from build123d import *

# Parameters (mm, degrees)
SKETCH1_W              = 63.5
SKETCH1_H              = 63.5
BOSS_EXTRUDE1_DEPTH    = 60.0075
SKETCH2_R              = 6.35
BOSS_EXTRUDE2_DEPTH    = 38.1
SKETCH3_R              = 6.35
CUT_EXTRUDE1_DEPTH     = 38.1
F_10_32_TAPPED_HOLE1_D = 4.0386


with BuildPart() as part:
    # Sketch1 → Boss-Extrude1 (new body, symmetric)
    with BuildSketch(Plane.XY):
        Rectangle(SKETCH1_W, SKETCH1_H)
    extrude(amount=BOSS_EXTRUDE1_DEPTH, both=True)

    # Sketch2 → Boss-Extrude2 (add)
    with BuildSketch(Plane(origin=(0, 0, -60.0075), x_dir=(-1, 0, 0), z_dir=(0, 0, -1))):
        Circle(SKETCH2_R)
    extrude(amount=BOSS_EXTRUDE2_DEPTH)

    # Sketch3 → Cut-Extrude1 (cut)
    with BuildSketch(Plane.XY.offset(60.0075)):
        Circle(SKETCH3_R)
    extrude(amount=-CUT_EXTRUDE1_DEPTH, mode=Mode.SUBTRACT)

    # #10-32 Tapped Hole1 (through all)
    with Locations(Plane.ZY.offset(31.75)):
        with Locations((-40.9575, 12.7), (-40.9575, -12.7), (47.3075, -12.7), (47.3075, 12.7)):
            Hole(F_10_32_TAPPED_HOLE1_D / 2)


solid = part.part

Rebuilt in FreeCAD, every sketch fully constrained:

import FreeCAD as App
import Part
import Sketcher
Q = App.Units.Quantity


def add_polygon(sketch, points):
    """Adds a closed chain of lines whose ends are joined by coincident constraints."""
    first, n = sketch.GeometryCount, len(points)
    for a, b in zip(points, points[1:] + points[:1]):
        sketch.addGeometry(Part.LineSegment(App.Vector(*a, 0), App.Vector(*b, 0)), False)
    for i in range(n):
        sketch.addConstraint(Sketcher.Constraint("Coincident", first + i, 2, first + (i + 1) % n, 1))

doc = App.newDocument("Part")
body = doc.addObject("PartDesign::Body", "Body")

sketch1 = body.newObject("Sketcher::SketchObject", "Sketch")
sketch1.AttachmentSupport = (doc.getObject("XY_Plane"), [""])
sketch1.MapMode = "FlatFace"
add_polygon(sketch1, [(-31.75, 31.75), (-31.75, -31.75), (31.75, -31.75), (31.75, 31.75)])
sketch1.addConstraint(Sketcher.Constraint("Vertical", 0))
sketch1.addConstraint(Sketcher.Constraint("Horizontal", 1))
sketch1.addConstraint(Sketcher.Constraint("Vertical", 2))
sketch1.addConstraint(Sketcher.Constraint("Horizontal", 3))
sketch1.addConstraint(Sketcher.Constraint("Symmetric", 0, 2, 2, 2, -1, 1))
sketch1.addConstraint(Sketcher.Constraint("Equal", 3, 0))
sketch1.addConstraint(Sketcher.Constraint("DistanceX", 1, 1, 1, 2, Q("2.5 in")))
pad1 = body.newObject("PartDesign::Pad", "Pad")
pad1.Profile = sketch1
pad1.Length = Q("4.725 in")
pad1.Midplane = True

sketch2 = body.newObject("Sketcher::SketchObject", "Sketch001")
sketch2.AttachmentSupport = (doc.getObject("XY_Plane"), [""])
sketch2.MapMode = "FlatFace"
sketch2.AttachmentOffset = App.Placement(App.Vector(0, 0, -2.3625 * 25.4), App.Rotation())
sketch2.addGeometry(Part.Circle(App.Vector(0, 0, 0), App.Vector(0, 0, 1), 6.35), False)
sketch2.addConstraint(Sketcher.Constraint("Coincident", 0, 3, -1, 1))
sketch2.addConstraint(Sketcher.Constraint("Diameter", 0, Q("0.5 in")))
pad2 = body.newObject("PartDesign::Pad", "Pad001")
pad2.Profile = sketch2
pad2.Length = Q("1.5 in")
pad2.Reversed = True

sketch3 = body.newObject("Sketcher::SketchObject", "Sketch002")
sketch3.AttachmentSupport = (doc.getObject("XY_Plane"), [""])
sketch3.MapMode = "FlatFace"
sketch3.AttachmentOffset = App.Placement(App.Vector(0, 0, 2.3625 * 25.4), App.Rotation())
sketch3.addGeometry(Part.Circle(App.Vector(0, 0, 0), App.Vector(0, 0, 1), 6.35), False)
sketch3.addConstraint(Sketcher.Constraint("Coincident", 0, 3, -1, 1))
sketch3.addConstraint(Sketcher.Constraint("Diameter", 0, Q("0.5 in")))
pocket1 = body.newObject("PartDesign::Pocket", "Pocket")
pocket1.Profile = sketch3
pocket1.Length = Q("1.5 in")

sketch4 = body.newObject("Sketcher::SketchObject", "Sketch003")
sketch4.AttachmentSupport = (doc.getObject("YZ_Plane"), [""])
sketch4.MapMode = "FlatFace"
sketch4.AttachmentOffset = App.Placement(App.Vector(0, 0, -1.25 * 25.4), App.Rotation())
sketch4.addGeometry(Part.Circle(App.Vector(12.7, -40.9575, 0), App.Vector(0, 0, 1), 2.0193), False)
sketch4.addGeometry(Part.Circle(App.Vector(-12.7, -40.9575, 0), App.Vector(0, 0, 1), 2.0193), False)
sketch4.addGeometry(Part.Circle(App.Vector(-12.7, 47.3075, 0), App.Vector(0, 0, 1), 2.0193), False)
sketch4.addGeometry(Part.Circle(App.Vector(12.7, 47.3075, 0), App.Vector(0, 0, 1), 2.0193), False)
sketch4.addConstraint(Sketcher.Constraint("Equal", 0, 1))
sketch4.addConstraint(Sketcher.Constraint("Equal", 1, 2))
sketch4.addConstraint(Sketcher.Constraint("Equal", 2, 3))
sketch4.addConstraint(Sketcher.Constraint("Symmetric", 0, 3, 1, 3, -2))
sketch4.addConstraint(Sketcher.Constraint("Symmetric", 2, 3, 3, 3, -2))
sketch4.addConstraint(Sketcher.Constraint("Vertical", 1, 3, 2, 3))
sketch4.addConstraint(Sketcher.Constraint("Diameter", 0, Q("0.159 in")))
sketch4.addConstraint(Sketcher.Constraint("DistanceX", 1, 3, 0, 3, Q("1 in")))
sketch4.addConstraint(Sketcher.Constraint("DistanceY", 1, 3, 2, 3, Q("3.475 in")))
sketch4.addConstraint(Sketcher.Constraint("DistanceY", 0, 3, -1, 1, Q("1.6125 in")))
doc.recompute()
hole = body.newObject("PartDesign::Hole", "Hole")
hole.Profile = sketch4
hole.ThreadType = "None"
hole.Diameter = Q("0.159 in")
hole.DepthType = "ThroughAll"
hole.Reversed = True

doc.recompute()
